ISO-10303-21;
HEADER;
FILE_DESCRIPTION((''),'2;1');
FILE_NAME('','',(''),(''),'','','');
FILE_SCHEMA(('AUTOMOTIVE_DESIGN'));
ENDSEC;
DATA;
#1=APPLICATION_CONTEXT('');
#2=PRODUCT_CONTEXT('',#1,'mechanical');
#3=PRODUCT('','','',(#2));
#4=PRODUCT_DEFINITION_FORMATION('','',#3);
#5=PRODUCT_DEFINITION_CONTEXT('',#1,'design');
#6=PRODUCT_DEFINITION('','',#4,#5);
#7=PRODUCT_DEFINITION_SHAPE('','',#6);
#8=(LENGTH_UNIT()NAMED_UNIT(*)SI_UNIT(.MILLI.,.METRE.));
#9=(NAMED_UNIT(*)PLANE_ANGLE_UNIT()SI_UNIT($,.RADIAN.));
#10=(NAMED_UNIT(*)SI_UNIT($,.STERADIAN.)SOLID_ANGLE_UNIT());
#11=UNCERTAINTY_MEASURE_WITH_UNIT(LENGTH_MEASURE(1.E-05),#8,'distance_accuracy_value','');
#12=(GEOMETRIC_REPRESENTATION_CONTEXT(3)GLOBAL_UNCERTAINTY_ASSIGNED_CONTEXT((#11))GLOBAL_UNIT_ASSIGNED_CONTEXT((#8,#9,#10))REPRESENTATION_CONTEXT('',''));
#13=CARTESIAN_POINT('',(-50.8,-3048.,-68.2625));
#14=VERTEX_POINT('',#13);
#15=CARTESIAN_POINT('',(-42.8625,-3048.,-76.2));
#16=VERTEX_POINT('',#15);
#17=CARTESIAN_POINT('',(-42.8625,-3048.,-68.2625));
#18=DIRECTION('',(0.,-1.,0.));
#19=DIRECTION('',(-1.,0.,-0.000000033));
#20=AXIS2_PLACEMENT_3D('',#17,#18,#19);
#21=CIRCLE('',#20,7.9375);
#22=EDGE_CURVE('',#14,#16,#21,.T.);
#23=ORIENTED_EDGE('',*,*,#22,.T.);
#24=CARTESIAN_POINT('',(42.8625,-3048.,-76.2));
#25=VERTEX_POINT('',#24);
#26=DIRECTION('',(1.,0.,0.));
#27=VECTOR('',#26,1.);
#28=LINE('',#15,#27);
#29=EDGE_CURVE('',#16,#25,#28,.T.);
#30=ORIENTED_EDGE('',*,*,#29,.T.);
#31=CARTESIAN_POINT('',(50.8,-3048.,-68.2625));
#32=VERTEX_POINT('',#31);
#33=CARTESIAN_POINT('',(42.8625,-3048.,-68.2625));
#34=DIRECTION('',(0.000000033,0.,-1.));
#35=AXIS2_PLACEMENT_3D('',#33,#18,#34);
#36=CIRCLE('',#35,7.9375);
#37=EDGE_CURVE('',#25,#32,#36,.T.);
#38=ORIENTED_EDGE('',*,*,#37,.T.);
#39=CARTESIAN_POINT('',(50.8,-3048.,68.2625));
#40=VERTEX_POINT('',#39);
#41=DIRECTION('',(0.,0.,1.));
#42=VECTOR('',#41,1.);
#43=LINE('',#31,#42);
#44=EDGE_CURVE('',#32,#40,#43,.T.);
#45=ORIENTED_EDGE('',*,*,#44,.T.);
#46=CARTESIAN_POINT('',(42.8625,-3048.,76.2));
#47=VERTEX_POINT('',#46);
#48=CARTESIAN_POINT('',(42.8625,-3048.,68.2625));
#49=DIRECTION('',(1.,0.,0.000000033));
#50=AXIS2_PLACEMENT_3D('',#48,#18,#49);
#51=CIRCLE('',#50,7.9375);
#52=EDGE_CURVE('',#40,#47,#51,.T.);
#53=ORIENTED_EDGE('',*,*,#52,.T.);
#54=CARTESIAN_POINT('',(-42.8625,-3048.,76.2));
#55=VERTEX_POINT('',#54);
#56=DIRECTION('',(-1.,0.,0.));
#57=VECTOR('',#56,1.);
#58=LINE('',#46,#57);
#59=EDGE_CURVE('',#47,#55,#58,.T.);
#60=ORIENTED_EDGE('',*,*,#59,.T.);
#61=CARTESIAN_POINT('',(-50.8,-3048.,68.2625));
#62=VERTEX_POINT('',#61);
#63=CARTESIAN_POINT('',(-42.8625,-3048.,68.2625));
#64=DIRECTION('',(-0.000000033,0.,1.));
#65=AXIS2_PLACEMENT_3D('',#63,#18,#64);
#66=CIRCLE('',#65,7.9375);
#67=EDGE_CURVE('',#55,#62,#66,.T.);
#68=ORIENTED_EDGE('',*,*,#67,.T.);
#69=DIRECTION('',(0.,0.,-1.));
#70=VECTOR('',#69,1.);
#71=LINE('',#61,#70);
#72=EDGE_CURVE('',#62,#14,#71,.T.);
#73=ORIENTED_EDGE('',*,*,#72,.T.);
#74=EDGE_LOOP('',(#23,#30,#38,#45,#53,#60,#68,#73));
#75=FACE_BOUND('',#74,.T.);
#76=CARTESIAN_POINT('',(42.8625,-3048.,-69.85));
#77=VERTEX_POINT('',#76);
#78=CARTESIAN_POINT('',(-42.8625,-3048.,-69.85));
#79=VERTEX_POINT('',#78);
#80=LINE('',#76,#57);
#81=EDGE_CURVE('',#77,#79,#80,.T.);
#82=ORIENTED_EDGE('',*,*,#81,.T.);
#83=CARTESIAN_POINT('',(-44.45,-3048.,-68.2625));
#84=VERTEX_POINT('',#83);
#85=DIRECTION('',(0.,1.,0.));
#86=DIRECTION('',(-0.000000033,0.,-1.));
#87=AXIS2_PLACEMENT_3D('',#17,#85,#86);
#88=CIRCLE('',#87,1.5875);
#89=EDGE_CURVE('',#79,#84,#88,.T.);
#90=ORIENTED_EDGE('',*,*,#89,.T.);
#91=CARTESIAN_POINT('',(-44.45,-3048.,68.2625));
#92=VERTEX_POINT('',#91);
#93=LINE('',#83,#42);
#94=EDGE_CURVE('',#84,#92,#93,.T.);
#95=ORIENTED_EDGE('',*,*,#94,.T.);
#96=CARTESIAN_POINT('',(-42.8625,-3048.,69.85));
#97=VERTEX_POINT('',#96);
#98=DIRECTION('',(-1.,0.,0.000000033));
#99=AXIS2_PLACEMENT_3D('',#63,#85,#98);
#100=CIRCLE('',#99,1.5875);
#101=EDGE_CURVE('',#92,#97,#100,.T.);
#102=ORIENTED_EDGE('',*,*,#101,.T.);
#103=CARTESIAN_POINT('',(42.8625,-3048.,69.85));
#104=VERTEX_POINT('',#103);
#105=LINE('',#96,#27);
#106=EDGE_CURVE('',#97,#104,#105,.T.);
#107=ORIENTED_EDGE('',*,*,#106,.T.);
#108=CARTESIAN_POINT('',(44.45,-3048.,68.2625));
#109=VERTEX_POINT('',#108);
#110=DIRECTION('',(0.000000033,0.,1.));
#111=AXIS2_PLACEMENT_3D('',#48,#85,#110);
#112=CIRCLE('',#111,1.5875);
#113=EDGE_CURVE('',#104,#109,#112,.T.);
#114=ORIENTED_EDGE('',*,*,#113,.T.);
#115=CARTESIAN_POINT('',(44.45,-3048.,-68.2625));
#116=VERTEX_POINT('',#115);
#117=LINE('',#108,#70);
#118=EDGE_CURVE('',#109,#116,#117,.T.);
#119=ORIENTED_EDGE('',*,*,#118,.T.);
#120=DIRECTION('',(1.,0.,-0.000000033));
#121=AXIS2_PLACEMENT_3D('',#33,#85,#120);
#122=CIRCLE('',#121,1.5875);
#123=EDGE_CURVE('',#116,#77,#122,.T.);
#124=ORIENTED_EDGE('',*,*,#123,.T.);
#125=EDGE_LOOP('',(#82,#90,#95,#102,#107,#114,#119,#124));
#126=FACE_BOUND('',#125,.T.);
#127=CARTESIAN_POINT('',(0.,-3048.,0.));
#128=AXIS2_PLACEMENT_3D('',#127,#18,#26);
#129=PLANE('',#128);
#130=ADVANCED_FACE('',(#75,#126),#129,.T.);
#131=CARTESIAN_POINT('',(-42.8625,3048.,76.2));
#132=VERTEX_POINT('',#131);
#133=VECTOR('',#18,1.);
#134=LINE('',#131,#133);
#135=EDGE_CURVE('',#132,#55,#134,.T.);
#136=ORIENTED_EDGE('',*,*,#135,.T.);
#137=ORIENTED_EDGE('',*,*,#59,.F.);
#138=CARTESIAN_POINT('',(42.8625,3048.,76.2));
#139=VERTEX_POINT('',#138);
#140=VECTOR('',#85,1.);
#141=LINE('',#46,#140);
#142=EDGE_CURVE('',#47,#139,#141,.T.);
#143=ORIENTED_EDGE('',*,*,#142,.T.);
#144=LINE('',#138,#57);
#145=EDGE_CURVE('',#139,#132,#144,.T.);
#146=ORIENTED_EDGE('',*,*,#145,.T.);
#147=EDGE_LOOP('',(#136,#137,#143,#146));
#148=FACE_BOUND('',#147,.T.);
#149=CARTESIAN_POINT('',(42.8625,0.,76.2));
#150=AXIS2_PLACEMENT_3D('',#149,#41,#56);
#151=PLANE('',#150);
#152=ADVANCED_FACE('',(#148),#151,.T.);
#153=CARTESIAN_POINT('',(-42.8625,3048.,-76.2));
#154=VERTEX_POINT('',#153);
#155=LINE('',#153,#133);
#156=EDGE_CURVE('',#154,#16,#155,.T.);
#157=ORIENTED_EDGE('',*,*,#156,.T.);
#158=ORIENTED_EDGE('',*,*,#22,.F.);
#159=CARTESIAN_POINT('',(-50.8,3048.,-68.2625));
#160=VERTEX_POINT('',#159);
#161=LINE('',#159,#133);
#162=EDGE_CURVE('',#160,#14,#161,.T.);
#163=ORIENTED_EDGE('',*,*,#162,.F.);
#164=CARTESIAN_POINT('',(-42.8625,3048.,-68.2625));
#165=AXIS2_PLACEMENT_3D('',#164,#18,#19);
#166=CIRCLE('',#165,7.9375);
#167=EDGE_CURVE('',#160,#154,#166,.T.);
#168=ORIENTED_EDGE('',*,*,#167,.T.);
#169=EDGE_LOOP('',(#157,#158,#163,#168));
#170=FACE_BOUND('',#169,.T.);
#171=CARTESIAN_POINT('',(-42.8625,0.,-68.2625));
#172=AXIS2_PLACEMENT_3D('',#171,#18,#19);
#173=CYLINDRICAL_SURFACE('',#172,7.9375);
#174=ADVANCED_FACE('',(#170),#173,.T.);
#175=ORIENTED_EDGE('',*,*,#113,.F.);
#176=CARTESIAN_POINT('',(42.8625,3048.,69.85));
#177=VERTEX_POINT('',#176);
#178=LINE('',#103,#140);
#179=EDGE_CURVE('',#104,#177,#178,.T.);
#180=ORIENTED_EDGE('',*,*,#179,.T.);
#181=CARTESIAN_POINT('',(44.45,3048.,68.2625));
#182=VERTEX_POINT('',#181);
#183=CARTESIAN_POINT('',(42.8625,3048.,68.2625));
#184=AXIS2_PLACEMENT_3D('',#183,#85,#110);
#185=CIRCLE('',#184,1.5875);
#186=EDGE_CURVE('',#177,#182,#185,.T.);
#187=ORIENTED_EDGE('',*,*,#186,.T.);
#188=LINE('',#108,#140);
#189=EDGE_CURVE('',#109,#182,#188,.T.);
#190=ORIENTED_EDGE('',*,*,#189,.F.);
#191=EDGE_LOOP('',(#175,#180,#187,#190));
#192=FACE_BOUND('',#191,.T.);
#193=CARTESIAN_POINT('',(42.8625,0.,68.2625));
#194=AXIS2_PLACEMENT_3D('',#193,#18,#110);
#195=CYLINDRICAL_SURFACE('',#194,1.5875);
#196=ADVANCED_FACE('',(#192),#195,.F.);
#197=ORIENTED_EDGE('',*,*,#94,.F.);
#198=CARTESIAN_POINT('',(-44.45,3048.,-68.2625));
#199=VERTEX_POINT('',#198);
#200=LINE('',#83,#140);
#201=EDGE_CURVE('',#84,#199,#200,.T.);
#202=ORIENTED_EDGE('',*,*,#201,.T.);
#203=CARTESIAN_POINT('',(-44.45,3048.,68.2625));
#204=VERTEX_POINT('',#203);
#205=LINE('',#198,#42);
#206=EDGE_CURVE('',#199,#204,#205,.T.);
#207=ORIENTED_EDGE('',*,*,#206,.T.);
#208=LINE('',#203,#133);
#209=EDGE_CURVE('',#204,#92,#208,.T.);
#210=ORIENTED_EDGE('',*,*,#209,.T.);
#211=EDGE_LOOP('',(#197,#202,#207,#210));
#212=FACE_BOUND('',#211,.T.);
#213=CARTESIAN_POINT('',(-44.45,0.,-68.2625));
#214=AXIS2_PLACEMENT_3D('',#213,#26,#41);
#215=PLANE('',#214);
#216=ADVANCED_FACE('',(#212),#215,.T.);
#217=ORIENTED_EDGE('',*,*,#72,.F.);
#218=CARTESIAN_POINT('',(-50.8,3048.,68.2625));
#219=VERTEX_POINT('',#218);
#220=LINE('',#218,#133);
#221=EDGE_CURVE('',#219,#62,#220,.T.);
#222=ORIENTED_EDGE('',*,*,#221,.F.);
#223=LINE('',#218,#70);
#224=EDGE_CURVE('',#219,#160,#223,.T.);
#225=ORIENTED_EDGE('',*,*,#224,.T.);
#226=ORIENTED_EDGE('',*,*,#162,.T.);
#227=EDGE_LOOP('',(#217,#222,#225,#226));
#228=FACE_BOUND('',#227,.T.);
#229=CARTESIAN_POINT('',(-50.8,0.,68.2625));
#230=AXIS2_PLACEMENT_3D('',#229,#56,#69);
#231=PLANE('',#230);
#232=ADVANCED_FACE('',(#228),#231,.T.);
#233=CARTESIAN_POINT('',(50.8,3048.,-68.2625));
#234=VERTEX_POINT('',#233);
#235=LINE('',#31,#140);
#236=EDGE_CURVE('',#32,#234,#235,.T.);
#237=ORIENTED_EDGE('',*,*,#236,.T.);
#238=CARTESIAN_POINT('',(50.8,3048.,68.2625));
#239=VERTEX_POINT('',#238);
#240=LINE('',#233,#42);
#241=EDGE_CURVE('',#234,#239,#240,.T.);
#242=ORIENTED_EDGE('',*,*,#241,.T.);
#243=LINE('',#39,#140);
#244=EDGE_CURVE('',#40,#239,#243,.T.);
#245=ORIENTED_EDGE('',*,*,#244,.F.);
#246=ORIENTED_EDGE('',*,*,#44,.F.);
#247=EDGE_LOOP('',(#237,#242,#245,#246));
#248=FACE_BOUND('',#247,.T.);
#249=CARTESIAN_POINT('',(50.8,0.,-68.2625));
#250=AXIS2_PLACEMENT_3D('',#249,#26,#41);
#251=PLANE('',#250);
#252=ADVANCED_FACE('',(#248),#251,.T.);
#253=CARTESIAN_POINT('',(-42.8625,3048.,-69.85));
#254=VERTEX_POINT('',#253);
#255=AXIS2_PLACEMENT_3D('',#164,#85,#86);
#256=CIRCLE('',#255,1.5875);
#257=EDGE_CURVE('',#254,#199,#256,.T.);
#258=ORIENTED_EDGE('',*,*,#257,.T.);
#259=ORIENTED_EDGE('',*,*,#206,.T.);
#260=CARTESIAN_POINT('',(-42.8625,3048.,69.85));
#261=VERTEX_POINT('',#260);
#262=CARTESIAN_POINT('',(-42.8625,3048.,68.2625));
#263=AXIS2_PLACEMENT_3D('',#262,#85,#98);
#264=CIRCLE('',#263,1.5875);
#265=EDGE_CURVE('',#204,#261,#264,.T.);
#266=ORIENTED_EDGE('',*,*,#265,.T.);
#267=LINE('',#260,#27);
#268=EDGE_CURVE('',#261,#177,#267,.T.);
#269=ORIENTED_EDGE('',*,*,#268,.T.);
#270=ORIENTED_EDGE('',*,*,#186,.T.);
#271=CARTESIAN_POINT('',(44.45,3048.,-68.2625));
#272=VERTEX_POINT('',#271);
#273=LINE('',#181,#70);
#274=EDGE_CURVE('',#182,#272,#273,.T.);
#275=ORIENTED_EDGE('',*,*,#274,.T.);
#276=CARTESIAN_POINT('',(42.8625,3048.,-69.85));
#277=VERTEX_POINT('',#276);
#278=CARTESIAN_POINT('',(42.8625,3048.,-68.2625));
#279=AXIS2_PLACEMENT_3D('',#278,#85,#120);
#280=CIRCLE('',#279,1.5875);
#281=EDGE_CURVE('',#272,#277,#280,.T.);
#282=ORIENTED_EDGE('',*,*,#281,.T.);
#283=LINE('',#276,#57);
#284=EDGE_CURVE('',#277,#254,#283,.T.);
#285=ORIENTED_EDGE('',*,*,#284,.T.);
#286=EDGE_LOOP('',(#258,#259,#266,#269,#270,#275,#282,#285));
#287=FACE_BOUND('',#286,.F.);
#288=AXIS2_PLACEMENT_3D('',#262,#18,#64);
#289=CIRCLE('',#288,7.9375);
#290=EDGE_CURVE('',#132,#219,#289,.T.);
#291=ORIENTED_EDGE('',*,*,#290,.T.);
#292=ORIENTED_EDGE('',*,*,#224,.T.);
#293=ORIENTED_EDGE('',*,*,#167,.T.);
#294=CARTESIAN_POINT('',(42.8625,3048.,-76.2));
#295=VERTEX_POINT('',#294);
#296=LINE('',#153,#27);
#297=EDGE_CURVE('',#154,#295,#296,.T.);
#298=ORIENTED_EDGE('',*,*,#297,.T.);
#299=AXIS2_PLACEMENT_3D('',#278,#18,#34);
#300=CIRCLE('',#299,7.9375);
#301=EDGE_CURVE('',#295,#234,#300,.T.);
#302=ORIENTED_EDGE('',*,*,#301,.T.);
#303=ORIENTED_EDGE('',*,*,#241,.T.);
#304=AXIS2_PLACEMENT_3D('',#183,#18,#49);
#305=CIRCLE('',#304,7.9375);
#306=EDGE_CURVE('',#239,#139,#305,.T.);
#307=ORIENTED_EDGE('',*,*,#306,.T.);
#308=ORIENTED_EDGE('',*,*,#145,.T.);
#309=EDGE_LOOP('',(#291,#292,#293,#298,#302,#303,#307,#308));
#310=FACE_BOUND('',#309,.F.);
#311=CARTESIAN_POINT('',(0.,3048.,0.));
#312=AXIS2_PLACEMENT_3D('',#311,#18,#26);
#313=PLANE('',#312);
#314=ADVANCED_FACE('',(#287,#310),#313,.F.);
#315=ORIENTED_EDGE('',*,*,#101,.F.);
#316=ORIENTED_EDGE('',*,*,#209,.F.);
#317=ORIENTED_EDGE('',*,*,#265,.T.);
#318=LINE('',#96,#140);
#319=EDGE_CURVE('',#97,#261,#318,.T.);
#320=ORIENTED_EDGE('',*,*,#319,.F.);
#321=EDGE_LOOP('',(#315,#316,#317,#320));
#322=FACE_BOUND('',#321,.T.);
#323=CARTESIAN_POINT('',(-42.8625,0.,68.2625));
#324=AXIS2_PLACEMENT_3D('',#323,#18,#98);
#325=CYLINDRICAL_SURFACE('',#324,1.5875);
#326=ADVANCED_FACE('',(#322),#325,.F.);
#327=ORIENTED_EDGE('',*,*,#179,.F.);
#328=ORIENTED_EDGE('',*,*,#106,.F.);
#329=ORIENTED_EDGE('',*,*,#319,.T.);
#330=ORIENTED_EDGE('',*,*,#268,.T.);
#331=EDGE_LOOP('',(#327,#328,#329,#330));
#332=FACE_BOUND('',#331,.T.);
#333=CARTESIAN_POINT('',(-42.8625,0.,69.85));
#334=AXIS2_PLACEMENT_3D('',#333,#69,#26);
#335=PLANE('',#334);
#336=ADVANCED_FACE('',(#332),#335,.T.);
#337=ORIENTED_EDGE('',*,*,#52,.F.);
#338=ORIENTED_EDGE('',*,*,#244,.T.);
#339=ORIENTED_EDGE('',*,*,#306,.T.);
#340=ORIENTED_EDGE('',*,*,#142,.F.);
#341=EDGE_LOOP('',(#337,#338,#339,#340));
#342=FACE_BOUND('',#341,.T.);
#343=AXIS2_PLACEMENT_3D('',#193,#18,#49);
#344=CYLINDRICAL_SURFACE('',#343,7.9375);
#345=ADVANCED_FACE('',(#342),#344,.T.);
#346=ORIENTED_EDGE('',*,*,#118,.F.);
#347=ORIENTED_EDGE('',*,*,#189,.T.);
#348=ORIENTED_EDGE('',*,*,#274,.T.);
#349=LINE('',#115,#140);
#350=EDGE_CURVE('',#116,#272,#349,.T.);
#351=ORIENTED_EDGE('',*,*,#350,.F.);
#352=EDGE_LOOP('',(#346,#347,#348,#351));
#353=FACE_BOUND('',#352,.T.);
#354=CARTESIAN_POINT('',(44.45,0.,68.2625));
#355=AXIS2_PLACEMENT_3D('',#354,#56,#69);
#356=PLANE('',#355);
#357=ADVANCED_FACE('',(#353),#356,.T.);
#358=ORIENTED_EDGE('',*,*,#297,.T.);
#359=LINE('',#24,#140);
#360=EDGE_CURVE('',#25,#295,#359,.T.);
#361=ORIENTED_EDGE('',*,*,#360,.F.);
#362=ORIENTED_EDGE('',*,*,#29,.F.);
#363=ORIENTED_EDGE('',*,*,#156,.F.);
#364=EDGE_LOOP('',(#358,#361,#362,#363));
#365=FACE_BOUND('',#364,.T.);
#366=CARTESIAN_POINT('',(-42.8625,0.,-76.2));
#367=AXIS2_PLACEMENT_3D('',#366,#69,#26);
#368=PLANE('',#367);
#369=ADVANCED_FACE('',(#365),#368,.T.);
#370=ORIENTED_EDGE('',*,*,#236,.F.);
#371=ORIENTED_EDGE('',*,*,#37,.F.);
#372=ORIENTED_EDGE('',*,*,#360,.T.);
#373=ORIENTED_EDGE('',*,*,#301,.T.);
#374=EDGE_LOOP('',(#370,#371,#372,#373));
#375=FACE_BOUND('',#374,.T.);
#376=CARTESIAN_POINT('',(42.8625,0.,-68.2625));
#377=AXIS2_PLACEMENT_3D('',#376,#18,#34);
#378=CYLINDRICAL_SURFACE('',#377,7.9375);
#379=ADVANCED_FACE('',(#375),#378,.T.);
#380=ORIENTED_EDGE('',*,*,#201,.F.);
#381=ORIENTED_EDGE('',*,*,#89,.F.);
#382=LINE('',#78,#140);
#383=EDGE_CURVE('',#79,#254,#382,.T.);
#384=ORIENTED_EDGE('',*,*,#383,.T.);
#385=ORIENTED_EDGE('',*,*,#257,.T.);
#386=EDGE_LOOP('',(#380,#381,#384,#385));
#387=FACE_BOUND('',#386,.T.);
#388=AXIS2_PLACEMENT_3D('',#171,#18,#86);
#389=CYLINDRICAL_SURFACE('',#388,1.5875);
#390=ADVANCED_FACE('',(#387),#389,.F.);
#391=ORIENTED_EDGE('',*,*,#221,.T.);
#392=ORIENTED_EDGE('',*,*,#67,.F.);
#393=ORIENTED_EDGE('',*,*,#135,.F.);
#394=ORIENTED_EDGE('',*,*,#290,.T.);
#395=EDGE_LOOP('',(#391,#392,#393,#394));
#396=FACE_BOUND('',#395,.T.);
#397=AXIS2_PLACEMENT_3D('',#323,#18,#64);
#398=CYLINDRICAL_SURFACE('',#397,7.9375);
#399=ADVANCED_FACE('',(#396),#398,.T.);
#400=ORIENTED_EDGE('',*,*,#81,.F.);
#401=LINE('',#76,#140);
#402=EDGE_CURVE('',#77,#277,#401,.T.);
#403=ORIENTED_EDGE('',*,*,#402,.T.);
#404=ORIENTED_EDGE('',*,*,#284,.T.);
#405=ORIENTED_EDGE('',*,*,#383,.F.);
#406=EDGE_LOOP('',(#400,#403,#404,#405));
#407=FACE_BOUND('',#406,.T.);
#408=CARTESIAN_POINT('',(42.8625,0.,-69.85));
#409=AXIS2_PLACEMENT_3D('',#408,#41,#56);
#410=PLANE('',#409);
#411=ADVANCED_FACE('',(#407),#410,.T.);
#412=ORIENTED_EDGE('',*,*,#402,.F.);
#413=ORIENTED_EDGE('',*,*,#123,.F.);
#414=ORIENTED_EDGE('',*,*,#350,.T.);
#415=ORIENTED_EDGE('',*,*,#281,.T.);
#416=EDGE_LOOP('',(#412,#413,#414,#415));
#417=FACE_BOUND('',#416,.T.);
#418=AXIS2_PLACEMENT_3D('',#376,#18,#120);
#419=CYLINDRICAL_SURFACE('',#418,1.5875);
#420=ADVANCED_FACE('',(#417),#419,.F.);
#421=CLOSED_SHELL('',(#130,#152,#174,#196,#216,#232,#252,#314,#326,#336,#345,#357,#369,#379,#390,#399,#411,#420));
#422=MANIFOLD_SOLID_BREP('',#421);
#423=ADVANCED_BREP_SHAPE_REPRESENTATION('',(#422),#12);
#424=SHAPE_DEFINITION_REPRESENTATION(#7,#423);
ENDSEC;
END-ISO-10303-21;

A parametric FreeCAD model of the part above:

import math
import FreeCAD as App
import Part
import Sketcher

V = App.Vector
Q = App.Units.Quantity

doc = App.newDocument("Part")
params = doc.addObject("Spreadsheet::Sheet", "Params")
for row, (alias, value) in enumerate([
    ("sketch1_radius", "0.3125 in"),
    ("sketch1_radius2", "0.0625 in"),
    ("pad1_length", "240 in"),
], start=1):
    params.set(f"A{row}", alias)
    params.set(f"B{row}", "=" + value)
    params.setAlias(f"B{row}", alias)

body = doc.addObject("PartDesign::Body", "Body")

# Sketch on XZ plane
sketch1 = doc.addObject("Sketcher::SketchObject", "Sketch")
body.addObject(sketch1)
sketch1.AttachmentSupport = (doc.XZ_Plane, [""])
sketch1.MapMode = "FlatFace"
sketch1.addGeometry([
    Part.LineSegment(V(42.9, 76.2, 0), V(-42.9, 76.2, 0)),  # 0
    Part.ArcOfCircle(Part.Circle(V(-42.9, 68.3, 0), V(0, 0, 1), 7.9), math.radians(90), math.radians(180)),  # 1
    Part.LineSegment(V(-50.8, 68.3, 0), V(-50.8, -68.3, 0)),  # 2
    Part.ArcOfCircle(Part.Circle(V(-42.9, -68.3, 0), V(0, 0, 1), 7.9), math.radians(-180), math.radians(-90)),  # 3
    Part.LineSegment(V(-42.9, -76.2, 0), V(42.9, -76.2, 0)),  # 4
    Part.ArcOfCircle(Part.Circle(V(42.9, -68.3, 0), V(0, 0, 1), 7.9), math.radians(-90), math.radians(0)),  # 5
    Part.LineSegment(V(50.8, -68.3, 0), V(50.8, 68.3, 0)),  # 6
    Part.ArcOfCircle(Part.Circle(V(42.9, 68.3, 0), V(0, 0, 1), 7.9), math.radians(0), math.radians(90)),  # 7
    Part.LineSegment(V(-44.5, -68.3, 0), V(-44.5, 68.3, 0)),  # 8
    Part.ArcOfCircle(Part.Circle(V(-42.9, 68.3, 0), V(0, 0, 1), 1.6), math.radians(90), math.radians(180)),  # 9
    Part.LineSegment(V(-42.9, 69.8, 0), V(42.9, 69.8, 0)),  # 10
    Part.ArcOfCircle(Part.Circle(V(42.9, 68.3, 0), V(0, 0, 1), 1.6), math.radians(0), math.radians(90)),  # 11
    Part.LineSegment(V(44.5, 68.3, 0), V(44.5, -68.3, 0)),  # 12
    Part.ArcOfCircle(Part.Circle(V(42.9, -68.3, 0), V(0, 0, 1), 1.6), math.radians(-90), math.radians(0)),  # 13
    Part.LineSegment(V(42.9, -69.8, 0), V(-42.9, -69.8, 0)),  # 14
    Part.ArcOfCircle(Part.Circle(V(-42.9, -68.3, 0), V(0, 0, 1), 1.6), math.radians(-180), math.radians(-90)),  # 15
], False)
sketch1.addConstraint([
    Sketcher.Constraint("Tangent", 0, 2, 1, 1),
    Sketcher.Constraint("Tangent", 1, 2, 2, 1),
    Sketcher.Constraint("Tangent", 2, 2, 3, 1),
    Sketcher.Constraint("Tangent", 3, 2, 4, 1),
    Sketcher.Constraint("Tangent", 4, 2, 5, 1),
    Sketcher.Constraint("Tangent", 5, 2, 6, 1),
    Sketcher.Constraint("Tangent", 6, 2, 7, 1),
    Sketcher.Constraint("Tangent", 7, 2, 0, 1),
    Sketcher.Constraint("Tangent", 8, 2, 9, 2),
    Sketcher.Constraint("Tangent", 9, 1, 10, 1),
    Sketcher.Constraint("Tangent", 10, 2, 11, 2),
    Sketcher.Constraint("Tangent", 11, 1, 12, 1),
    Sketcher.Constraint("Tangent", 12, 2, 13, 2),
    Sketcher.Constraint("Tangent", 13, 1, 14, 1),
    Sketcher.Constraint("Tangent", 14, 2, 15, 2),
    Sketcher.Constraint("Tangent", 15, 1, 8, 1),
    Sketcher.Constraint("Horizontal", 0),
    Sketcher.Constraint("Vertical", 2),
    Sketcher.Constraint("Horizontal", 4),
    Sketcher.Constraint("Vertical", 6),
    Sketcher.Constraint("Vertical", 8),
    Sketcher.Constraint("Horizontal", 10),
    Sketcher.Constraint("Vertical", 12),
    Sketcher.Constraint("Horizontal", 14),
    Sketcher.Constraint("Coincident", 9, 3, 1, 3),
    Sketcher.Constraint("Coincident", 11, 3, 7, 3),
    Sketcher.Constraint("Coincident", 13, 3, 5, 3),
    Sketcher.Constraint("Equal", 1, 3),
    Sketcher.Constraint("Equal", 3, 5),
    Sketcher.Constraint("Equal", 5, 7),
    Sketcher.Constraint("Equal", 13, 15),
    Sketcher.Constraint("Symmetric", 1, 3, 5, 3, -1, 1),
    Sketcher.Constraint("DistanceY", -1, 1, 0, 2, Q("3 in")),
    Sketcher.Constraint("DistanceX", 1, 2, -1, 1, Q("2 in")),
    Sketcher.Constraint("Radius", 1, Q("0.3125 in")),
    Sketcher.Constraint("Radius", 9, Q("0.0625 in")),
])
sketch1.setExpression("Constraints[34]", "Params.sketch1_radius")
sketch1.setExpression("Constraints[35]", "Params.sketch1_radius2")
pad1 = doc.addObject("PartDesign::Pad", "Pad")
body.addObject(pad1)
pad1.Profile = sketch1
pad1.setExpression("Length", "Params.pad1_length")
pad1.Midplane = True

doc.recompute()
